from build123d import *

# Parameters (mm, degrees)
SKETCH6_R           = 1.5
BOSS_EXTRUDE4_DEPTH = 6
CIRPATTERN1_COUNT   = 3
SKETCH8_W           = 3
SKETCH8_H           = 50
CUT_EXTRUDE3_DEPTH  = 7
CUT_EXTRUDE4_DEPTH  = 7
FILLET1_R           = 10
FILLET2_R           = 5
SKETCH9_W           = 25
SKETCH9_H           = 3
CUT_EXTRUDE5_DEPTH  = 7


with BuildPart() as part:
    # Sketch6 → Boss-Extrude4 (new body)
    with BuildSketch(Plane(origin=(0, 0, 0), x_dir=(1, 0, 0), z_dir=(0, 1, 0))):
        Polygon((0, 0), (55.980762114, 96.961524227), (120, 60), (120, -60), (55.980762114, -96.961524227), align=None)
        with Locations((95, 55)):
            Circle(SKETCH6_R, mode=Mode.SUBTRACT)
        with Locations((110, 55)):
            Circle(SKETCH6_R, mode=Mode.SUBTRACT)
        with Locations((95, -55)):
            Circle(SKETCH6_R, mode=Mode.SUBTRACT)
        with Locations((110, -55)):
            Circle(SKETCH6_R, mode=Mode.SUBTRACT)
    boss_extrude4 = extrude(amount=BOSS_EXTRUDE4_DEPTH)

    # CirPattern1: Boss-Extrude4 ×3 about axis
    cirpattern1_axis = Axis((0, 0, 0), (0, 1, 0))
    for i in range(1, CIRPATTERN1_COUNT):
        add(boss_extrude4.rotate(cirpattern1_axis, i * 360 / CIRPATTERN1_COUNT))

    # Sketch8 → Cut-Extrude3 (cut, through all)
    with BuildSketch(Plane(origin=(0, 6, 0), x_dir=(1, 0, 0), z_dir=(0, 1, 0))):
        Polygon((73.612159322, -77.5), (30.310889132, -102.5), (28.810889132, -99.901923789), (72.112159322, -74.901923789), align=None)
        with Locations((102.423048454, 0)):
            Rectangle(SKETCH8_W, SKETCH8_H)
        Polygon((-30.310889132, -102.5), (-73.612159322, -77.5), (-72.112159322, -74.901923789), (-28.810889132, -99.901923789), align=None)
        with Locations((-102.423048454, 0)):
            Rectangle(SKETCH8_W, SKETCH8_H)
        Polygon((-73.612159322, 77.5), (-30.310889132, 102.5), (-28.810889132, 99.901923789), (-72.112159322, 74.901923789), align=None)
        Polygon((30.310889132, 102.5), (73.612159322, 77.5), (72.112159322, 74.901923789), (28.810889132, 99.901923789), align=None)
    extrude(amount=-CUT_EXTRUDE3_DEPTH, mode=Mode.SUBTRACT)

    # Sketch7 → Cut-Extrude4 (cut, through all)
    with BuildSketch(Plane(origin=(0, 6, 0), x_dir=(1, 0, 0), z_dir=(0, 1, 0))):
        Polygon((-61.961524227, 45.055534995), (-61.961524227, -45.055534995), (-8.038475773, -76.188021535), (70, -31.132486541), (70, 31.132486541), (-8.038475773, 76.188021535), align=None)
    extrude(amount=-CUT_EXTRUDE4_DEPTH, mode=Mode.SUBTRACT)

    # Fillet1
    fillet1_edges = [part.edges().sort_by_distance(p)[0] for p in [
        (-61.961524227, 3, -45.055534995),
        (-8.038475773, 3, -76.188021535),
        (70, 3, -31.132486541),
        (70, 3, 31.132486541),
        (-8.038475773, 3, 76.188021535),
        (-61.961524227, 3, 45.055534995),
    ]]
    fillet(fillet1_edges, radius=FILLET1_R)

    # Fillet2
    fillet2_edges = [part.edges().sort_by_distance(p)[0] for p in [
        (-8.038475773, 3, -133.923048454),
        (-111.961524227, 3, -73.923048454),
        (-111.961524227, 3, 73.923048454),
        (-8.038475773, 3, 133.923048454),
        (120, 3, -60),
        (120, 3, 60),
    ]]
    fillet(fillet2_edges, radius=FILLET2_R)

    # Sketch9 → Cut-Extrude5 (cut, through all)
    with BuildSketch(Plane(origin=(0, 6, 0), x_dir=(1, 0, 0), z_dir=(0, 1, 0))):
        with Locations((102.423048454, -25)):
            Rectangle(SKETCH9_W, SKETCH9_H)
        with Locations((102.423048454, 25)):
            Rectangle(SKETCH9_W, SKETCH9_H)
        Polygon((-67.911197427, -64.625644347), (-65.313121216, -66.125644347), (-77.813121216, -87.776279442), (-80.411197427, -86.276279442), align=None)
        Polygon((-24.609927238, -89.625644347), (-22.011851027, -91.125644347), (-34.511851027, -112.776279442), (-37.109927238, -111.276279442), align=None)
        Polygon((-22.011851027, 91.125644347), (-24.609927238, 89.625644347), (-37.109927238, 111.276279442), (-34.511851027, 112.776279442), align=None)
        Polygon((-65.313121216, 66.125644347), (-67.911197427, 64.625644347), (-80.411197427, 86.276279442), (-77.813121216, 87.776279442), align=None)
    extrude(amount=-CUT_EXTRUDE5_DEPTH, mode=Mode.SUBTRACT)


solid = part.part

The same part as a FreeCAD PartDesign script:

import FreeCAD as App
import Part
import Sketcher
Q = App.Units.Quantity


def edges_at(feature, points):
    """Names of the edges that pass closest to the given points."""
    edges = feature.Shape.Edges
    near = lambda p: min(range(len(edges)), key=lambda i: edges[i].distToShape(Part.Vertex(*p))[0])
    return sorted({f"Edge{near(p) + 1}" for p in points})

doc = App.newDocument("Part")
params = doc.addObject("Spreadsheet::Sheet", "Params")
for row, (alias, value) in enumerate([
    ("sketch1_diameter", "3 mm"),
    ("sketch1_height", "120 mm"),
    ("pad1_length", "6 mm"),
    ("sketch2_width", "3 mm"),
    ("sketch2_height", "50 mm"),
    ("sketch2_length", "50 mm"),
    ("sketch2_length2", "3 mm"),
    ("fillet_radius", "10 mm"),
    ("fillet2_radius", "5 mm"),
    ("sketch4_width", "25 mm"),
    ("sketch4_height", "3 mm"),
    ("sketch4_length", "3 mm"),
    ("sketch4_length2", "25 mm"),
], start=1):
    params.set(f"A{row}", alias)
    params.set(f"B{row}", "=" + value)
    params.setAlias(f"B{row}", alias)

body = doc.addObject("PartDesign::Body", "Body")

sketch1 = body.newObject("Sketcher::SketchObject", "Sketch")
sketch1.AttachmentSupport = (doc.getObject("XZ_Plane"), [""])
sketch1.MapMode = "FlatFace"
sketch1.addGeometry(Part.LineSegment(App.Vector(56, -97, 0), App.Vector(0, 0, 0)), False)
sketch1.addGeometry(Part.LineSegment(App.Vector(0, 0, 0), App.Vector(56, 97, 0)), False)
sketch1.addGeometry(Part.LineSegment(App.Vector(56, 97, 0), App.Vector(120, 60, 0)), False)
sketch1.addGeometry(Part.LineSegment(App.Vector(120, 60, 0), App.Vector(120, -60, 0)), False)
sketch1.addGeometry(Part.LineSegment(App.Vector(120, -60, 0), App.Vector(56, -97, 0)), False)
sketch1.addGeometry(Part.Circle(App.Vector(110, 55, 0), App.Vector(0, 0, 1), 1.5), False)
sketch1.addGeometry(Part.Circle(App.Vector(95, 55, 0), App.Vector(0, 0, 1), 1.5), False)
sketch1.addGeometry(Part.Circle(App.Vector(110, -55, 0), App.Vector(0, 0, 1), 1.5), False)
sketch1.addGeometry(Part.Circle(App.Vector(95, -55, 0), App.Vector(0, 0, 1), 1.5), False)
sketch1.addConstraint(Sketcher.Constraint("Coincident", 0, 2, 1, 1))
sketch1.addConstraint(Sketcher.Constraint("Coincident", 1, 2, 2, 1))
sketch1.addConstraint(Sketcher.Constraint("Coincident", 2, 2, 3, 1))
sketch1.addConstraint(Sketcher.Constraint("Coincident", 3, 2, 4, 1))
sketch1.addConstraint(Sketcher.Constraint("Coincident", 4, 2, 0, 1))
sketch1.addConstraint(Sketcher.Constraint("Vertical", 3))
sketch1.addConstraint(Sketcher.Constraint("Coincident", 0, 2, -1, 1))
sketch1.addConstraint(Sketcher.Constraint("Equal", 5, 6))
sketch1.addConstraint(Sketcher.Constraint("Equal", 6, 7))
sketch1.addConstraint(Sketcher.Constraint("Equal", 7, 8))
sketch1.addConstraint(Sketcher.Constraint("Symmetric", 5, 3, 7, 3, -1))
sketch1.addConstraint(Sketcher.Constraint("Symmetric", 6, 3, 8, 3, -1))
sketch1.addConstraint(Sketcher.Constraint("Symmetric", 1, 2, 4, 2, -1))
sketch1.addConstraint(Sketcher.Constraint("Perpendicular", 1, 2))
sketch1.addConstraint(Sketcher.Constraint("Perpendicular", 0, 4))
sketch1.addConstraint(Sketcher.Constraint("Horizontal", 5, 3, 6, 3))
sketch1.addConstraint(Sketcher.Constraint("Diameter", 5, 3.0))
sketch1.addConstraint(Sketcher.Constraint("DistanceY", 3, 2, 3, 1, 120.0))
sketch1.addConstraint(Sketcher.Constraint("Angle", 0, Q("120 deg")))
sketch1.addConstraint(Sketcher.Constraint("DistanceX", -1, 1, 5, 3, 110.0))
sketch1.addConstraint(Sketcher.Constraint("DistanceY", -1, 1, 5, 3, 55.0))
sketch1.addConstraint(Sketcher.Constraint("DistanceX", -1, 1, 6, 3, 95.0))
sketch1.addConstraint(Sketcher.Constraint("DistanceX", -1, 1, 2, 2, 120.0))
sketch1.setExpression("Constraints[16]", "Params.sketch1_diameter")
sketch1.setExpression("Constraints[17]", "Params.sketch1_height")
pad1 = body.newObject("PartDesign::Pad", "Pad")
pad1.Profile = sketch1
pad1.setExpression("Length", "Params.pad1_length")
pad1.Reversed = True
doc.recompute()

polarpattern = body.newObject("PartDesign::PolarPattern", "PolarPattern")
polarpattern.Originals = [pad1]
polarpattern.Axis = (doc.getObject("Y_Axis"), [""])
polarpattern.Angle = 360
polarpattern.Occurrences = 3
body.Tip = polarpattern

sketch2 = body.newObject("Sketcher::SketchObject", "Sketch001")
sketch2.AttachmentSupport = (doc.getObject("XZ_Plane"), [""])
sketch2.MapMode = "FlatFace"
sketch2.AttachmentOffset = App.Placement(App.Vector(0, 0, -6), App.Rotation())
sketch2.addGeometry(Part.LineSegment(App.Vector(30.3, 102.5, 0), App.Vector(73.6, 77.5, 0)), False)
sketch2.addGeometry(Part.LineSegment(App.Vector(73.6, 77.5, 0), App.Vector(72.1, 74.9, 0)), False)
sketch2.addGeometry(Part.LineSegment(App.Vector(72.1, 74.9, 0), App.Vector(28.8, 99.9, 0)), False)
sketch2.addGeometry(Part.LineSegment(App.Vector(28.8, 99.9, 0), App.Vector(30.3, 102.5, 0)), False)
sketch2.addGeometry(Part.LineSegment(App.Vector(100.9, -25, 0), App.Vector(100.9, 25, 0)), False)
sketch2.addGeometry(Part.LineSegment(App.Vector(100.9, 25, 0), App.Vector(103.9, 25, 0)), False)
sketch2.addGeometry(Part.LineSegment(App.Vector(103.9, 25, 0), App.Vector(103.9, -25, 0)), False)
sketch2.addGeometry(Part.LineSegment(App.Vector(103.9, -25, 0), App.Vector(100.9, -25, 0)), False)
sketch2.addGeometry(Part.LineSegment(App.Vector(-73.6, 77.5, 0), App.Vector(-30.3, 102.5, 0)), False)
sketch2.addGeometry(Part.LineSegment(App.Vector(-30.3, 102.5, 0), App.Vector(-28.8, 99.9, 0)), False)
sketch2.addGeometry(Part.LineSegment(App.Vector(-28.8, 99.9, 0), App.Vector(-72.1, 74.9, 0)), False)
sketch2.addGeometry(Part.LineSegment(App.Vector(-72.1, 74.9, 0), App.Vector(-73.6, 77.5, 0)), False)
sketch2.addGeometry(Part.LineSegment(App.Vector(-103.9, -25, 0), App.Vector(-103.9, 25, 0)), False)
sketch2.addGeometry(Part.LineSegment(App.Vector(-103.9, 25, 0), App.Vector(-100.9, 25, 0)), False)
sketch2.addGeometry(Part.LineSegment(App.Vector(-100.9, 25, 0), App.Vector(-100.9, -25, 0)), False)
sketch2.addGeometry(Part.LineSegment(App.Vector(-100.9, -25, 0), App.Vector(-103.9, -25, 0)), False)
sketch2.addGeometry(Part.LineSegment(App.Vector(-30.3, -102.5, 0), App.Vector(-73.6, -77.5, 0)), False)
sketch2.addGeometry(Part.LineSegment(App.Vector(-73.6, -77.5, 0), App.Vector(-72.1, -74.9, 0)), False)
sketch2.addGeometry(Part.LineSegment(App.Vector(-72.1, -74.9, 0), App.Vector(-28.8, -99.9, 0)), False)
sketch2.addGeometry(Part.LineSegment(App.Vector(-28.8, -99.9, 0), App.Vector(-30.3, -102.5, 0)), False)
sketch2.addGeometry(Part.LineSegment(App.Vector(73.6, -77.5, 0), App.Vector(30.3, -102.5, 0)), False)
sketch2.addGeometry(Part.LineSegment(App.Vector(30.3, -102.5, 0), App.Vector(28.8, -99.9, 0)), False)
sketch2.addGeometry(Part.LineSegment(App.Vector(28.8, -99.9, 0), App.Vector(72.1, -74.9, 0)), False)
sketch2.addGeometry(Part.LineSegment(App.Vector(72.1, -74.9, 0), App.Vector(73.6, -77.5, 0)), False)
sketch2.addConstraint(Sketcher.Constraint("Coincident", 0, 2, 1, 1))
sketch2.addConstraint(Sketcher.Constraint("Coincident", 1, 2, 2, 1))
sketch2.addConstraint(Sketcher.Constraint("Coincident", 2, 2, 3, 1))
sketch2.addConstraint(Sketcher.Constraint("Coincident", 3, 2, 0, 1))
sketch2.addConstraint(Sketcher.Constraint("Coincident", 4, 2, 5, 1))
sketch2.addConstraint(Sketcher.Constraint("Coincident", 5, 2, 6, 1))
sketch2.addConstraint(Sketcher.Constraint("Coincident", 6, 2, 7, 1))
sketch2.addConstraint(Sketcher.Constraint("Coincident", 7, 2, 4, 1))
sketch2.addConstraint(Sketcher.Constraint("Coincident", 8, 2, 9, 1))
sketch2.addConstraint(Sketcher.Constraint("Coincident", 9, 2, 10, 1))
sketch2.addConstraint(Sketcher.Constraint("Coincident", 10, 2, 11, 1))
sketch2.addConstraint(Sketcher.Constraint("Coincident", 11, 2, 8, 1))
sketch2.addConstraint(Sketcher.Constraint("Coincident", 12, 2, 13, 1))
sketch2.addConstraint(Sketcher.Constraint("Coincident", 13, 2, 14, 1))
sketch2.addConstraint(Sketcher.Constraint("Coincident", 14, 2, 15, 1))
sketch2.addConstraint(Sketcher.Constraint("Coincident", 15, 2, 12, 1))
sketch2.addConstraint(Sketcher.Constraint("Coincident", 16, 2, 17, 1))
sketch2.addConstraint(Sketcher.Constraint("Coincident", 17, 2, 18, 1))
sketch2.addConstraint(Sketcher.Constraint("Coincident", 18, 2, 19, 1))
sketch2.addConstraint(Sketcher.Constraint("Coincident", 19, 2, 16, 1))
sketch2.addConstraint(Sketcher.Constraint("Coincident", 20, 2, 21, 1))
sketch2.addConstraint(Sketcher.Constraint("Coincident", 21, 2, 22, 1))
sketch2.addConstraint(Sketcher.Constraint("Coincident", 22, 2, 23, 1))
sketch2.addConstraint(Sketcher.Constraint("Coincident", 23, 2, 20, 1))
sketch2.addConstraint(Sketcher.Constraint("Vertical", 4))
sketch2.addConstraint(Sketcher.Constraint("Horizontal", 5))
sketch2.addConstraint(Sketcher.Constraint("Vertical", 6))
sketch2.addConstraint(Sketcher.Constraint("Horizontal", 7))
sketch2.addConstraint(Sketcher.Constraint("Vertical", 12))
sketch2.addConstraint(Sketcher.Constraint("Horizontal", 13))
sketch2.addConstraint(Sketcher.Constraint("Vertical", 14))
sketch2.addConstraint(Sketcher.Constraint("Horizontal", 15))
sketch2.addConstraint(Sketcher.Constraint("Symmetric", 6, 2, 12, 2, -1, 1))
sketch2.addConstraint(Sketcher.Constraint("Symmetric", 4, 2, 14, 2, -1, 1))
sketch2.addConstraint(Sketcher.Constraint("Symmetric", 0, 2, 16, 2, -1, 1))
sketch2.addConstraint(Sketcher.Constraint("Symmetric", 1, 2, 17, 2, -1, 1))
sketch2.addConstraint(Sketcher.Constraint("Symmetric", 2, 2, 18, 2, -1, 1))
sketch2.addConstraint(Sketcher.Constraint("Symmetric", 3, 2, 19, 2, -1, 1))
sketch2.addConstraint(Sketcher.Constraint("Symmetric", 8, 2, 20, 2, -1, 1))
sketch2.addConstraint(Sketcher.Constraint("Symmetric", 9, 2, 21, 2, -1, 1))
sketch2.addConstraint(Sketcher.Constraint("Symmetric", 10, 2, 22, 2, -1, 1))
sketch2.addConstraint(Sketcher.Constraint("Symmetric", 11, 2, 23, 2, -1, 1))
sketch2.addConstraint(Sketcher.Constraint("Symmetric", 3, 2, 8, 2, -2))
sketch2.addConstraint(Sketcher.Constraint("Symmetric", 2, 2, 9, 2, -2))
sketch2.addConstraint(Sketcher.Constraint("Symmetric", 1, 2, 10, 2, -2))
sketch2.addConstraint(Sketcher.Constraint("Symmetric", 0, 2, 11, 2, -2))
sketch2.addConstraint(Sketcher.Constraint("Perpendicular", 0, 1))
sketch2.addConstraint(Sketcher.Constraint("Perpendicular", 1, 2))
sketch2.addConstraint(Sketcher.Constraint("Perpendicular", 2, 3))
sketch2.addConstraint(Sketcher.Constraint("Horizontal", 5, 2, 12, 2))
sketch2.addConstraint(Sketcher.Constraint("DistanceX", 5, 1, 5, 2, 3.0))
sketch2.addConstraint(Sketcher.Constraint("DistanceY", 4, 1, 4, 2, 50.0))
sketch2.addConstraint(Sketcher.Constraint("Angle", 0, Q("-30 deg")))
sketch2.addConstraint(Sketcher.Constraint("Distance", 0, 50.0))
sketch2.addConstraint(Sketcher.Constraint("Distance", 1, 3.0))
sketch2.addConstraint(Sketcher.Constraint("DistanceY", -1, 1, 0, 2, 77.5))
sketch2.addConstraint(Sketcher.Constraint("DistanceX", -1, 1, 0, 2, 73.612159))
sketch2.addConstraint(Sketcher.Constraint("DistanceX", -1, 1, 4, 2, 100.923048))
sketch2.setExpression("Constraints[50]", "Params.sketch2_width")
sketch2.setExpression("Constraints[51]", "Params.sketch2_height")
sketch2.setExpression("Constraints[53]", "Params.sketch2_length")
sketch2.setExpression("Constraints[54]", "Params.sketch2_length2")
pocket1 = body.newObject("PartDesign::Pocket", "Pocket")
pocket1.Profile = sketch2
pocket1.Type = "ThroughAll"
pocket1.Reversed = True

sketch3 = body.newObject("Sketcher::SketchObject", "Sketch002")
sketch3.AttachmentSupport = (doc.getObject("XZ_Plane"), [""])
sketch3.MapMode = "FlatFace"
sketch3.AttachmentOffset = App.Placement(App.Vector(0, 0, -6), App.Rotation())
sketch3.addGeometry(Part.LineSegment(App.Vector(-62, -45, 0), App.Vector(-62, 45, 0)), False)
sketch3.addGeometry(Part.LineSegment(App.Vector(-62, 45, 0), App.Vector(-8, 76, 0)), False)
sketch3.addGeometry(Part.LineSegment(App.Vector(-8, 76, 0), App.Vector(70, 31, 0)), False)
sketch3.addGeometry(Part.LineSegment(App.Vector(70, 31, 0), App.Vector(70, -31, 0)), False)
sketch3.addGeometry(Part.LineSegment(App.Vector(70, -31, 0), App.Vector(-8, -76, 0)), False)
sketch3.addGeometry(Part.LineSegment(App.Vector(-8, -76, 0), App.Vector(-62, -45, 0)), False)
sketch3.addConstraint(Sketcher.Constraint("Coincident", 0, 2, 1, 1))
sketch3.addConstraint(Sketcher.Constraint("Coincident", 1, 2, 2, 1))
sketch3.addConstraint(Sketcher.Constraint("Coincident", 2, 2, 3, 1))
sketch3.addConstraint(Sketcher.Constraint("Coincident", 3, 2, 4, 1))
sketch3.addConstraint(Sketcher.Constraint("Coincident", 4, 2, 5, 1))
sketch3.addConstraint(Sketcher.Constraint("Coincident", 5, 2, 0, 1))
sketch3.addConstraint(Sketcher.Constraint("Vertical", 0))
sketch3.addConstraint(Sketcher.Constraint("Vertical", 3))
sketch3.addConstraint(Sketcher.Constraint("Symmetric", 1, 2, 4, 2, -1))
sketch3.addConstraint(Sketcher.Constraint("Parallel", 1, 4))
sketch3.addConstraint(Sketcher.Constraint("Parallel", 2, 5))
sketch3.addConstraint(Sketcher.Constraint("Equal", 2, 4))
sketch3.addConstraint(Sketcher.Constraint("Angle", 1, Q("30 deg")))
sketch3.addConstraint(Sketcher.Constraint("DistanceX", -1, 1, 2, 2, 70.0))
sketch3.addConstraint(Sketcher.Constraint("DistanceY", 0, 1, 0, 2, 90.11107))
sketch3.addConstraint(Sketcher.Constraint("Distance", 2, 90.11107))
sketch3.addConstraint(Sketcher.Constraint("DistanceY", 3, 2, 3, 1, 62.264973))
pocket2 = body.newObject("PartDesign::Pocket", "Pocket001")
pocket2.Profile = sketch3
pocket2.Type = "ThroughAll"
pocket2.Reversed = True
doc.recompute()

fillet = body.newObject("PartDesign::Fillet", "Fillet")
fillet.Base = (pocket2, edges_at(pocket2, [
    (-61.962, 3, -45.056),
    (-8.038, 3, -76.188),
    (70, 3, -31.132),
    (70, 3, 31.132),
    (-8.038, 3, 76.188),
    (-61.962, 3, 45.056),
]))
fillet.setExpression("Radius", "Params.fillet_radius")
doc.recompute()

fillet2 = body.newObject("PartDesign::Fillet", "Fillet001")
fillet2.Base = (fillet, edges_at(fillet, [
    (-8.038, 3, -133.923),
    (-111.962, 3, -73.923),
    (-111.962, 3, 73.923),
    (-8.038, 3, 133.923),
    (120, 3, -60),
    (120, 3, 60),
]))
fillet2.setExpression("Radius", "Params.fillet2_radius")

sketch4 = body.newObject("Sketcher::SketchObject", "Sketch003")
sketch4.AttachmentSupport = (doc.getObject("XZ_Plane"), [""])
sketch4.MapMode = "FlatFace"
sketch4.AttachmentOffset = App.Placement(App.Vector(0, 0, -6), App.Rotation())
sketch4.addGeometry(Part.LineSegment(App.Vector(89.9, 23.5, 0), App.Vector(89.9, 26.5, 0)), False)
sketch4.addGeometry(Part.LineSegment(App.Vector(89.9, 26.5, 0), App.Vector(114.9, 26.5, 0)), False)
sketch4.addGeometry(Part.LineSegment(App.Vector(114.9, 26.5, 0), App.Vector(114.9, 23.5, 0)), False)
sketch4.addGeometry(Part.LineSegment(App.Vector(114.9, 23.5, 0), App.Vector(89.9, 23.5, 0)), False)
sketch4.addGeometry(Part.LineSegment(App.Vector(89.9, -26.5, 0), App.Vector(89.9, -23.5, 0)), False)
sketch4.addGeometry(Part.LineSegment(App.Vector(89.9, -23.5, 0), App.Vector(114.9, -23.5, 0)), False)
sketch4.addGeometry(Part.LineSegment(App.Vector(114.9, -23.5, 0), App.Vector(114.9, -26.5, 0)), False)
sketch4.addGeometry(Part.LineSegment(App.Vector(114.9, -26.5, 0), App.Vector(89.9, -26.5, 0)), False)
sketch4.addGeometry(Part.LineSegment(App.Vector(-65.3, 66.1, 0), App.Vector(-67.9, 64.6, 0)), False)
sketch4.addGeometry(Part.LineSegment(App.Vector(-67.9, 64.6, 0), App.Vector(-80.4, 86.3, 0)), False)
sketch4.addGeometry(Part.LineSegment(App.Vector(-80.4, 86.3, 0), App.Vector(-77.8, 87.8, 0)), False)
sketch4.addGeometry(Part.LineSegment(App.Vector(-77.8, 87.8, 0), App.Vector(-65.3, 66.1, 0)), False)
sketch4.addGeometry(Part.LineSegment(App.Vector(-22, 91.1, 0), App.Vector(-24.6, 89.6, 0)), False)
sketch4.addGeometry(Part.LineSegment(App.Vector(-24.6, 89.6, 0), App.Vector(-37.1, 111.3, 0)), False)
sketch4.addGeometry(Part.LineSegment(App.Vector(-37.1, 111.3, 0), App.Vector(-34.5, 112.8, 0)), False)
sketch4.addGeometry(Part.LineSegment(App.Vector(-34.5, 112.8, 0), App.Vector(-22, 91.1, 0)), False)
sketch4.addGeometry(Part.LineSegment(App.Vector(-24.6, -89.6, 0), App.Vector(-22, -91.1, 0)), False)
sketch4.addGeometry(Part.LineSegment(App.Vector(-22, -91.1, 0), App.Vector(-34.5, -112.8, 0)), False)
sketch4.addGeometry(Part.LineSegment(App.Vector(-34.5, -112.8, 0), App.Vector(-37.1, -111.3, 0)), False)
sketch4.addGeometry(Part.LineSegment(App.Vector(-37.1, -111.3, 0), App.Vector(-24.6, -89.6, 0)), False)
sketch4.addGeometry(Part.LineSegment(App.Vector(-67.9, -64.6, 0), App.Vector(-65.3, -66.1, 0)), False)
sketch4.addGeometry(Part.LineSegment(App.Vector(-65.3, -66.1, 0), App.Vector(-77.8, -87.8, 0)), False)
sketch4.addGeometry(Part.LineSegment(App.Vector(-77.8, -87.8, 0), App.Vector(-80.4, -86.3, 0)), False)
sketch4.addGeometry(Part.LineSegment(App.Vector(-80.4, -86.3, 0), App.Vector(-67.9, -64.6, 0)), False)
sketch4.addConstraint(Sketcher.Constraint("Coincident", 0, 2, 1, 1))
sketch4.addConstraint(Sketcher.Constraint("Coincident", 1, 2, 2, 1))
sketch4.addConstraint(Sketcher.Constraint("Coincident", 2, 2, 3, 1))
sketch4.addConstraint(Sketcher.Constraint("Coincident", 3, 2, 0, 1))
sketch4.addConstraint(Sketcher.Constraint("Coincident", 4, 2, 5, 1))
sketch4.addConstraint(Sketcher.Constraint("Coincident", 5, 2, 6, 1))
sketch4.addConstraint(Sketcher.Constraint("Coincident", 6, 2, 7, 1))
sketch4.addConstraint(Sketcher.Constraint("Coincident", 7, 2, 4, 1))
sketch4.addConstraint(Sketcher.Constraint("Coincident", 8, 2, 9, 1))
sketch4.addConstraint(Sketcher.Constraint("Coincident", 9, 2, 10, 1))
sketch4.addConstraint(Sketcher.Constraint("Coincident", 10, 2, 11, 1))
sketch4.addConstraint(Sketcher.Constraint("Coincident", 11, 2, 8, 1))
sketch4.addConstraint(Sketcher.Constraint("Coincident", 12, 2, 13, 1))
sketch4.addConstraint(Sketcher.Constraint("Coincident", 13, 2, 14, 1))
sketch4.addConstraint(Sketcher.Constraint("Coincident", 14, 2, 15, 1))
sketch4.addConstraint(Sketcher.Constraint("Coincident", 15, 2, 12, 1))
sketch4.addConstraint(Sketcher.Constraint("Coincident", 16, 2, 17, 1))
sketch4.addConstraint(Sketcher.Constraint("Coincident", 17, 2, 18, 1))
sketch4.addConstraint(Sketcher.Constraint("Coincident", 18, 2, 19, 1))
sketch4.addConstraint(Sketcher.Constraint("Coincident", 19, 2, 16, 1))
sketch4.addConstraint(Sketcher.Constraint("Coincident", 20, 2, 21, 1))
sketch4.addConstraint(Sketcher.Constraint("Coincident", 21, 2, 22, 1))
sketch4.addConstraint(Sketcher.Constraint("Coincident", 22, 2, 23, 1))
sketch4.addConstraint(Sketcher.Constraint("Coincident", 23, 2, 20, 1))
sketch4.addConstraint(Sketcher.Constraint("Vertical", 0))
sketch4.addConstraint(Sketcher.Constraint("Horizontal", 1))
sketch4.addConstraint(Sketcher.Constraint("Vertical", 2))
sketch4.addConstraint(Sketcher.Constraint("Horizontal", 3))
sketch4.addConstraint(Sketcher.Constraint("Vertical", 4))
sketch4.addConstraint(Sketcher.Constraint("Horizontal", 5))
sketch4.addConstraint(Sketcher.Constraint("Vertical", 6))
sketch4.addConstraint(Sketcher.Constraint("Horizontal", 7))
sketch4.addConstraint(Sketcher.Constraint("Symmetric", 3, 2, 4, 2, -1))
sketch4.addConstraint(Sketcher.Constraint("Symmetric", 1, 2, 6, 2, -1))
sketch4.addConstraint(Sketcher.Constraint("Symmetric", 15, 2, 16, 2, -1))
sketch4.addConstraint(Sketcher.Constraint("Symmetric", 14, 2, 17, 2, -1))
sketch4.addConstraint(Sketcher.Constraint("Symmetric", 13, 2, 18, 2, -1))
sketch4.addConstraint(Sketcher.Constraint("Symmetric", 12, 2, 19, 2, -1))
sketch4.addConstraint(Sketcher.Constraint("Symmetric", 11, 2, 20, 2, -1))
sketch4.addConstraint(Sketcher.Constraint("Symmetric", 10, 2, 21, 2, -1))
sketch4.addConstraint(Sketcher.Constraint("Symmetric", 9, 2, 22, 2, -1))
sketch4.addConstraint(Sketcher.Constraint("Symmetric", 8, 2, 23, 2, -1))
sketch4.addConstraint(Sketcher.Constraint("Perpendicular", 8, 9))
sketch4.addConstraint(Sketcher.Constraint("Perpendicular", 9, 10))
sketch4.addConstraint(Sketcher.Constraint("Perpendicular", 10, 11))
sketch4.addConstraint(Sketcher.Constraint("Perpendicular", 11, 12))
sketch4.addConstraint(Sketcher.Constraint("Perpendicular", 12, 13))
sketch4.addConstraint(Sketcher.Constraint("Perpendicular", 13, 14))
sketch4.addConstraint(Sketcher.Constraint("Perpendicular", 14, 15))
sketch4.addConstraint(Sketcher.Constraint("Equal", 10, 12))
sketch4.addConstraint(Sketcher.Constraint("Equal", 11, 13))
sketch4.addConstraint(Sketcher.Constraint("DistanceX", 1, 1, 1, 2, 25.0))
sketch4.addConstraint(Sketcher.Constraint("DistanceY", 0, 1, 0, 2, 3.0))
sketch4.addConstraint(Sketcher.Constraint("Angle", 8, Q("-150 deg")))
sketch4.addConstraint(Sketcher.Constraint("Distance", 8, 3.0))
sketch4.addConstraint(Sketcher.Constraint("Distance", 9, 25.0))
sketch4.addConstraint(Sketcher.Constraint("DistanceY", 4, 2, 3, 2, 47.0))
sketch4.addConstraint(Sketcher.Constraint("DistanceY", 8, 2, 12, 2, 25.0))
sketch4.addConstraint(Sketcher.Constraint("DistanceX", 16, 2, 7, 2, 111.934899))
sketch4.addConstraint(Sketcher.Constraint("DistanceX", -1, 1, 0, 2, 89.923048))
sketch4.addConstraint(Sketcher.Constraint("DistanceY", -1, 1, 9, 2, 86.276279))
sketch4.addConstraint(Sketcher.Constraint("DistanceX", 10, 2, -1, 1, 77.813121))
sketch4.setExpression("Constraints[51]", "Params.sketch4_width")
sketch4.setExpression("Constraints[52]", "Params.sketch4_height")
sketch4.setExpression("Constraints[54]", "Params.sketch4_length")
sketch4.setExpression("Constraints[55]", "Params.sketch4_length2")
pocket3 = body.newObject("PartDesign::Pocket", "Pocket002")
pocket3.Profile = sketch4
pocket3.Type = "ThroughAll"
pocket3.Reversed = True

doc.recompute()
